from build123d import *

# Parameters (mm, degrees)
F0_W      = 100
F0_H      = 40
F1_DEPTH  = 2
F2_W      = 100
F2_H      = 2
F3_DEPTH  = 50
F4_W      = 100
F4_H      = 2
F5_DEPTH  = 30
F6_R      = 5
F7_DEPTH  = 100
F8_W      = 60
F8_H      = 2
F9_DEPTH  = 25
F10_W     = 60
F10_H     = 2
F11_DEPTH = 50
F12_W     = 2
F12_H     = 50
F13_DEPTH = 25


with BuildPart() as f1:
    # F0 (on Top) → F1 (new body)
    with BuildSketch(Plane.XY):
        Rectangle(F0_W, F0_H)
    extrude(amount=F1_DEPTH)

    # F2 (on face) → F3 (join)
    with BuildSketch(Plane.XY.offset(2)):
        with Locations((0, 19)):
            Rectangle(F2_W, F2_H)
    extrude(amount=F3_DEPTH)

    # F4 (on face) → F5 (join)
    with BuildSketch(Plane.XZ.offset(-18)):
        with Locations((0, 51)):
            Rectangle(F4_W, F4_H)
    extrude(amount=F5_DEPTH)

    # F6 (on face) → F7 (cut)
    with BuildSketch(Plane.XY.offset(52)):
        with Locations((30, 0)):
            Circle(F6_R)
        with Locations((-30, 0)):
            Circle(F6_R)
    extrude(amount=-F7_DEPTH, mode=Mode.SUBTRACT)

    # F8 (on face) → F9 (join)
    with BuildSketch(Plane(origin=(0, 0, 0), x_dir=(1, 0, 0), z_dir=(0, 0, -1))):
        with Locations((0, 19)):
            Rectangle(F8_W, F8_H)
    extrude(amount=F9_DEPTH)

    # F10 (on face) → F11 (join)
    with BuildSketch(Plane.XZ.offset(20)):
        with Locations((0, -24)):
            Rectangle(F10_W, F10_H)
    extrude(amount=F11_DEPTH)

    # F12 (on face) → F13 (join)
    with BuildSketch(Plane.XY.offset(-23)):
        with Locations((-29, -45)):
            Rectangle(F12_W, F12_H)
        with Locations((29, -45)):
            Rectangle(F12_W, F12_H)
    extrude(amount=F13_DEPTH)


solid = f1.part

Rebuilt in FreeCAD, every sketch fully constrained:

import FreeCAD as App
import Part
import Sketcher

V = App.Vector
Q = App.Units.Quantity

doc = App.newDocument("Part")
body = doc.addObject("PartDesign::Body", "Body")

sketch1 = body.newObject("Sketcher::SketchObject", "Sketch")
sketch1.AttachmentSupport = (doc.getObject("XY_Plane"), [""])
sketch1.MapMode = "FlatFace"
sketch1.addGeometry(Part.LineSegment(V(-50, 20, 0), V(-50, -20, 0)), False)
sketch1.addGeometry(Part.LineSegment(V(-50, -20, 0), V(50, -20, 0)), False)
sketch1.addGeometry(Part.LineSegment(V(50, -20, 0), V(50, 20, 0)), False)
sketch1.addGeometry(Part.LineSegment(V(50, 20, 0), V(-50, 20, 0)), False)
sketch1.addConstraint(Sketcher.Constraint("Coincident", 0, 2, 1, 1))
sketch1.addConstraint(Sketcher.Constraint("Coincident", 1, 2, 2, 1))
sketch1.addConstraint(Sketcher.Constraint("Coincident", 2, 2, 3, 1))
sketch1.addConstraint(Sketcher.Constraint("Coincident", 3, 2, 0, 1))
sketch1.addConstraint(Sketcher.Constraint("Vertical", 0))
sketch1.addConstraint(Sketcher.Constraint("Horizontal", 1))
sketch1.addConstraint(Sketcher.Constraint("Vertical", 2))
sketch1.addConstraint(Sketcher.Constraint("Horizontal", 3))
sketch1.addConstraint(Sketcher.Constraint("Symmetric", 0, 2, 2, 2, -1, 1))
sketch1.addConstraint(Sketcher.Constraint("DistanceX", 1, 1, 1, 2, Q("100 mm")))
sketch1.addConstraint(Sketcher.Constraint("DistanceY", 0, 2, 0, 1, Q("40 mm")))
pad1 = body.newObject("PartDesign::Pad", "Pad")
pad1.Profile = sketch1
pad1.Length = 2

sketch2 = body.newObject("Sketcher::SketchObject", "Sketch001")
sketch2.AttachmentSupport = (doc.getObject("XY_Plane"), [""])
sketch2.MapMode = "FlatFace"
sketch2.AttachmentOffset = App.Placement(V(0, 0, 2), App.Rotation())
sketch2.addGeometry(Part.LineSegment(V(-50, 20, 0), V(-50, 18, 0)), False)
sketch2.addGeometry(Part.LineSegment(V(-50, 18, 0), V(50, 18, 0)), False)
sketch2.addGeometry(Part.LineSegment(V(50, 18, 0), V(50, 20, 0)), False)
sketch2.addGeometry(Part.LineSegment(V(50, 20, 0), V(-50, 20, 0)), False)
sketch2.addConstraint(Sketcher.Constraint("Coincident", 0, 2, 1, 1))
sketch2.addConstraint(Sketcher.Constraint("Coincident", 1, 2, 2, 1))
sketch2.addConstraint(Sketcher.Constraint("Coincident", 2, 2, 3, 1))
sketch2.addConstraint(Sketcher.Constraint("Coincident", 3, 2, 0, 1))
sketch2.addConstraint(Sketcher.Constraint("Vertical", 0))
sketch2.addConstraint(Sketcher.Constraint("Horizontal", 1))
sketch2.addConstraint(Sketcher.Constraint("Vertical", 2))
sketch2.addConstraint(Sketcher.Constraint("Horizontal", 3))
sketch2.addConstraint(Sketcher.Constraint("DistanceX", 1, 1, 1, 2, Q("100 mm")))
sketch2.addConstraint(Sketcher.Constraint("DistanceY", 0, 2, 0, 1, Q("2 mm")))
sketch2.addConstraint(Sketcher.Constraint("DistanceX", 0, 2, -1, 1, Q("50 mm")))
sketch2.addConstraint(Sketcher.Constraint("DistanceY", -1, 1, 0, 2, Q("18 mm")))
pad2 = body.newObject("PartDesign::Pad", "Pad001")
pad2.Profile = sketch2
pad2.Length = 50

sketch3 = body.newObject("Sketcher::SketchObject", "Sketch002")
sketch3.AttachmentSupport = (doc.getObject("XZ_Plane"), [""])
sketch3.MapMode = "FlatFace"
sketch3.AttachmentOffset = App.Placement(V(0, 0, -18), App.Rotation())
sketch3.addGeometry(Part.LineSegment(V(-50, 52, 0), V(-50, 50, 0)), False)
sketch3.addGeometry(Part.LineSegment(V(-50, 50, 0), V(50, 50, 0)), False)
sketch3.addGeometry(Part.LineSegment(V(50, 50, 0), V(50, 52, 0)), False)
sketch3.addGeometry(Part.LineSegment(V(50, 52, 0), V(-50, 52, 0)), False)
sketch3.addConstraint(Sketcher.Constraint("Coincident", 0, 2, 1, 1))
sketch3.addConstraint(Sketcher.Constraint("Coincident", 1, 2, 2, 1))
sketch3.addConstraint(Sketcher.Constraint("Coincident", 2, 2, 3, 1))
sketch3.addConstraint(Sketcher.Constraint("Coincident", 3, 2, 0, 1))
sketch3.addConstraint(Sketcher.Constraint("Vertical", 0))
sketch3.addConstraint(Sketcher.Constraint("Horizontal", 1))
sketch3.addConstraint(Sketcher.Constraint("Vertical", 2))
sketch3.addConstraint(Sketcher.Constraint("Horizontal", 3))
sketch3.addConstraint(Sketcher.Constraint("DistanceX", 1, 1, 1, 2, Q("100 mm")))
sketch3.addConstraint(Sketcher.Constraint("DistanceY", 0, 2, 0, 1, Q("2 mm")))
sketch3.addConstraint(Sketcher.Constraint("DistanceX", 0, 2, -1, 1, Q("50 mm")))
sketch3.addConstraint(Sketcher.Constraint("DistanceY", -1, 1, 0, 2, Q("50 mm")))
pad3 = body.newObject("PartDesign::Pad", "Pad002")
pad3.Profile = sketch3
pad3.Length = 30

sketch4 = body.newObject("Sketcher::SketchObject", "Sketch003")
sketch4.AttachmentSupport = (doc.getObject("XY_Plane"), [""])
sketch4.MapMode = "FlatFace"
sketch4.AttachmentOffset = App.Placement(V(0, 0, 52), App.Rotation())
sketch4.addGeometry(Part.Circle(V(30, 0, 0), V(0, 0, 1), 5), False)
sketch4.addGeometry(Part.Circle(V(-30, 0, 0), V(0, 0, 1), 5), False)
sketch4.addConstraint(Sketcher.Constraint("Equal", 0, 1))
sketch4.addConstraint(Sketcher.Constraint("Symmetric", 0, 3, 1, 3, -1, 1))
sketch4.addConstraint(Sketcher.Constraint("PointOnObject", 0, 3, -1))
sketch4.addConstraint(Sketcher.Constraint("Diameter", 0, Q("10 mm")))
sketch4.addConstraint(Sketcher.Constraint("DistanceX", -1, 1, 0, 3, Q("30 mm")))
pocket1 = body.newObject("PartDesign::Pocket", "Pocket")
pocket1.Profile = sketch4
pocket1.Length = 100

sketch5 = body.newObject("Sketcher::SketchObject", "Sketch004")
sketch5.AttachmentSupport = (doc.getObject("XY_Plane"), [""])
sketch5.MapMode = "FlatFace"
sketch5.addGeometry(Part.LineSegment(V(-30, -20, 0), V(-30, -18, 0)), False)
sketch5.addGeometry(Part.LineSegment(V(-30, -18, 0), V(30, -18, 0)), False)
sketch5.addGeometry(Part.LineSegment(V(30, -18, 0), V(30, -20, 0)), False)
sketch5.addGeometry(Part.LineSegment(V(30, -20, 0), V(-30, -20, 0)), False)
sketch5.addConstraint(Sketcher.Constraint("Coincident", 0, 2, 1, 1))
sketch5.addConstraint(Sketcher.Constraint("Coincident", 1, 2, 2, 1))
sketch5.addConstraint(Sketcher.Constraint("Coincident", 2, 2, 3, 1))
sketch5.addConstraint(Sketcher.Constraint("Coincident", 3, 2, 0, 1))
sketch5.addConstraint(Sketcher.Constraint("Vertical", 0))
sketch5.addConstraint(Sketcher.Constraint("Horizontal", 1))
sketch5.addConstraint(Sketcher.Constraint("Vertical", 2))
sketch5.addConstraint(Sketcher.Constraint("Horizontal", 3))
sketch5.addConstraint(Sketcher.Constraint("DistanceX", 1, 1, 1, 2, Q("60 mm")))
sketch5.addConstraint(Sketcher.Constraint("DistanceY", 0, 1, 0, 2, Q("2 mm")))
sketch5.addConstraint(Sketcher.Constraint("DistanceX", 0, 2, -1, 1, Q("30 mm")))
sketch5.addConstraint(Sketcher.Constraint("DistanceY", 0, 2, -1, 1, Q("18 mm")))
pad4 = body.newObject("PartDesign::Pad", "Pad003")
pad4.Profile = sketch5
pad4.Length = 25
pad4.Reversed = True

sketch6 = body.newObject("Sketcher::SketchObject", "Sketch005")
sketch6.AttachmentSupport = (doc.getObject("XZ_Plane"), [""])
sketch6.MapMode = "FlatFace"
sketch6.AttachmentOffset = App.Placement(V(0, 0, 20), App.Rotation())
sketch6.addGeometry(Part.LineSegment(V(-30, -23, 0), V(-30, -25, 0)), False)
sketch6.addGeometry(Part.LineSegment(V(-30, -25, 0), V(30, -25, 0)), False)
sketch6.addGeometry(Part.LineSegment(V(30, -25, 0), V(30, -23, 0)), False)
sketch6.addGeometry(Part.LineSegment(V(30, -23, 0), V(-30, -23, 0)), False)
sketch6.addConstraint(Sketcher.Constraint("Coincident", 0, 2, 1, 1))
sketch6.addConstraint(Sketcher.Constraint("Coincident", 1, 2, 2, 1))
sketch6.addConstraint(Sketcher.Constraint("Coincident", 2, 2, 3, 1))
sketch6.addConstraint(Sketcher.Constraint("Coincident", 3, 2, 0, 1))
sketch6.addConstraint(Sketcher.Constraint("Vertical", 0))
sketch6.addConstraint(Sketcher.Constraint("Horizontal", 1))
sketch6.addConstraint(Sketcher.Constraint("Vertical", 2))
sketch6.addConstraint(Sketcher.Constraint("Horizontal", 3))
sketch6.addConstraint(Sketcher.Constraint("DistanceX", 1, 1, 1, 2, Q("60 mm")))
sketch6.addConstraint(Sketcher.Constraint("DistanceY", 0, 2, 0, 1, Q("2 mm")))
sketch6.addConstraint(Sketcher.Constraint("DistanceX", 0, 2, -1, 1, Q("30 mm")))
sketch6.addConstraint(Sketcher.Constraint("DistanceY", 0, 2, -1, 1, Q("25 mm")))
pad5 = body.newObject("PartDesign::Pad", "Pad004")
pad5.Profile = sketch6
pad5.Length = 50

sketch7 = body.newObject("Sketcher::SketchObject", "Sketch006")
sketch7.AttachmentSupport = (doc.getObject("XY_Plane"), [""])
sketch7.MapMode = "FlatFace"
sketch7.AttachmentOffset = App.Placement(V(0, 0, -23), App.Rotation())
sketch7.addGeometry(Part.LineSegment(V(-30, -20, 0), V(-30, -70, 0)), False)
sketch7.addGeometry(Part.LineSegment(V(-30, -70, 0), V(-28, -70, 0)), False)
sketch7.addGeometry(Part.LineSegment(V(-28, -70, 0), V(-28, -20, 0)), False)
sketch7.addGeometry(Part.LineSegment(V(-28, -20, 0), V(-30, -20, 0)), False)
sketch7.addGeometry(Part.LineSegment(V(28, -20, 0), V(28, -70, 0)), False)
sketch7.addGeometry(Part.LineSegment(V(28, -70, 0), V(30, -70, 0)), False)
sketch7.addGeometry(Part.LineSegment(V(30, -70, 0), V(30, -20, 0)), False)
sketch7.addGeometry(Part.LineSegment(V(30, -20, 0), V(28, -20, 0)), False)
sketch7.addConstraint(Sketcher.Constraint("Coincident", 0, 2, 1, 1))
sketch7.addConstraint(Sketcher.Constraint("Coincident", 1, 2, 2, 1))
sketch7.addConstraint(Sketcher.Constraint("Coincident", 2, 2, 3, 1))
sketch7.addConstraint(Sketcher.Constraint("Coincident", 3, 2, 0, 1))
sketch7.addConstraint(Sketcher.Constraint("Coincident", 4, 2, 5, 1))
sketch7.addConstraint(Sketcher.Constraint("Coincident", 5, 2, 6, 1))
sketch7.addConstraint(Sketcher.Constraint("Coincident", 6, 2, 7, 1))
sketch7.addConstraint(Sketcher.Constraint("Coincident", 7, 2, 4, 1))
sketch7.addConstraint(Sketcher.Constraint("Vertical", 0))
sketch7.addConstraint(Sketcher.Constraint("Horizontal", 1))
sketch7.addConstraint(Sketcher.Constraint("Vertical", 2))
sketch7.addConstraint(Sketcher.Constraint("Horizontal", 3))
sketch7.addConstraint(Sketcher.Constraint("Vertical", 4))
sketch7.addConstraint(Sketcher.Constraint("Horizontal", 5))
sketch7.addConstraint(Sketcher.Constraint("Vertical", 6))
sketch7.addConstraint(Sketcher.Constraint("Horizontal", 7))
sketch7.addConstraint(Sketcher.Constraint("Symmetric", 1, 2, 4, 2, -2))
sketch7.addConstraint(Sketcher.Constraint("Symmetric", 3, 2, 6, 2, -2))
sketch7.addConstraint(Sketcher.Constraint("DistanceX", 1, 1, 1, 2, Q("2 mm")))
sketch7.addConstraint(Sketcher.Constraint("DistanceY", 0, 2, 0, 1, Q("50 mm")))
sketch7.addConstraint(Sketcher.Constraint("DistanceX", 0, 2, -1, 1, Q("30 mm")))
sketch7.addConstraint(Sketcher.Constraint("DistanceY", 0, 2, -1, 1, Q("70 mm")))
pad6 = body.newObject("PartDesign::Pad", "Pad005")
pad6.Profile = sketch7
pad6.Length = 25

doc.recompute()
